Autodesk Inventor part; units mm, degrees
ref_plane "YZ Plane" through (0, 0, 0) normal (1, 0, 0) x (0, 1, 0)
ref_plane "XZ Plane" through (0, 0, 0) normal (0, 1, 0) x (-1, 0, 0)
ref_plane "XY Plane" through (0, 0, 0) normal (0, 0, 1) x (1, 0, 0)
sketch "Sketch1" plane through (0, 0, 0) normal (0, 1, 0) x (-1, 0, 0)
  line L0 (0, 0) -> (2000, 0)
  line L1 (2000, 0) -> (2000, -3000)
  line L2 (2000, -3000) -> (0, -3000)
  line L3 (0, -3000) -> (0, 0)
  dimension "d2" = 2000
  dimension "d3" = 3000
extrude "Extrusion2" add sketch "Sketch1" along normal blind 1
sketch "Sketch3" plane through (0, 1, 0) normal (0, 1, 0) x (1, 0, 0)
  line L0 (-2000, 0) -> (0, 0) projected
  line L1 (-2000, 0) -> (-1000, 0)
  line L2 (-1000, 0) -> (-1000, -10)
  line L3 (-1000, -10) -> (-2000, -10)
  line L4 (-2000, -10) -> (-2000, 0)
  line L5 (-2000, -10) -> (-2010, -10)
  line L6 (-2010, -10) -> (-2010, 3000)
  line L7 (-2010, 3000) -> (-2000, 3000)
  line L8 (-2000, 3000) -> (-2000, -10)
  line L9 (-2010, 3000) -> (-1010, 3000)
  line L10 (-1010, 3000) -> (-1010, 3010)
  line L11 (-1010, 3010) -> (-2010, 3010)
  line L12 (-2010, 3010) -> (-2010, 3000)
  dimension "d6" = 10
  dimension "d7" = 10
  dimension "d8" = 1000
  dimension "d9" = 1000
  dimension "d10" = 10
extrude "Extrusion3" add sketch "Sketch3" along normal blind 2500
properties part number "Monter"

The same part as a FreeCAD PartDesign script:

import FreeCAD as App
import Part
import Sketcher
from FreeCAD import Vector

doc = App.newDocument("Part")
params = doc.addObject("Spreadsheet::Sheet", "Params")
for row, (alias, value) in enumerate([
    ("sketch1_width", "2000 mm"),
    ("sketch1_height", "3000 mm"),
    ("pad1_length", "1 mm"),
    ("sketch2_width", "1000 mm"),
    ("sketch2_height", "10 mm"),
    ("sketch2_height2", "3000 mm"),
    ("pad2_length", "2500 mm"),
], start=1):
    params.set(f"A{row}", alias)
    params.set(f"B{row}", "=" + value)
    params.setAlias(f"B{row}", alias)

body = doc.addObject("PartDesign::Body", "Body")
body.AllowCompound = True

# Sketch on XZ plane
sketch1 = body.newObject("Sketcher::SketchObject", "Sketch")
sketch1.AttachmentSupport = (doc.getObject("XZ_Plane"), [""])
sketch1.MapMode = "FlatFace"
sketch1.addGeometry([
    Part.LineSegment(Vector(-2000, 0, 0), Vector(0, 0, 0)),
    Part.LineSegment(Vector(0, 0, 0), Vector(0, -3000, 0)),
    Part.LineSegment(Vector(0, -3000, 0), Vector(-2000, -3000, 0)),
    Part.LineSegment(Vector(-2000, -3000, 0), Vector(-2000, 0, 0)),
], False)
sketch1.addConstraint([
    Sketcher.Constraint("Coincident", 0, 2, 1, 1),
    Sketcher.Constraint("Coincident", 1, 2, 2, 1),
    Sketcher.Constraint("Coincident", 2, 2, 3, 1),
    Sketcher.Constraint("Coincident", 3, 2, 0, 1),
    Sketcher.Constraint("Horizontal", 0),
    Sketcher.Constraint("Vertical", 1),
    Sketcher.Constraint("Horizontal", 2),
    Sketcher.Constraint("Vertical", 3),
    Sketcher.Constraint("Coincident", 0, 2, -1, 1),
    Sketcher.Constraint("DistanceX", 0, 1, 0, 2, 2000.0),
    Sketcher.Constraint("DistanceY", 1, 2, 1, 1, 3000.0),
])
sketch1.setExpression("Constraints[9]", "Params.sketch1_width")
sketch1.setExpression("Constraints[10]", "Params.sketch1_height")
pad1 = body.newObject("PartDesign::Pad", "Pad")
pad1.Profile = sketch1
pad1.setExpression("Length", "Params.pad1_length")
pad1.Reversed = True

# Sketch on XZ plane
sketch2 = body.newObject("Sketcher::SketchObject", "Sketch001")
sketch2.AttachmentSupport = (doc.getObject("XZ_Plane"), [""])
sketch2.MapMode = "FlatFace"
sketch2.AttachmentOffset = App.Placement(Vector(0, 0, -1), App.Rotation())
sketch2.addGeometry([
    Part.LineSegment(Vector(-1000, 0, 0), Vector(-2000, 0, 0)),  # 0
    Part.LineSegment(Vector(-2000, 0, 0), Vector(-2000, -3000, 0)),  # 1
    Part.LineSegment(Vector(-2000, -3000, 0), Vector(-1010, -3000, 0)),  # 2
    Part.LineSegment(Vector(-1010, -3000, 0), Vector(-1010, -3010, 0)),  # 3
    Part.LineSegment(Vector(-1010, -3010, 0), Vector(-2010, -3010, 0)),  # 4
    Part.LineSegment(Vector(-2010, -3010, 0), Vector(-2010, 10, 0)),  # 5
    Part.LineSegment(Vector(-2010, 10, 0), Vector(-1000, 10, 0)),  # 6
    Part.LineSegment(Vector(-1000, 10, 0), Vector(-1000, 0, 0)),  # 7
], False)
sketch2.addConstraint([
    Sketcher.Constraint("Coincident", 0, 2, 1, 1),
    Sketcher.Constraint("Coincident", 1, 2, 2, 1),
    Sketcher.Constraint("Coincident", 2, 2, 3, 1),
    Sketcher.Constraint("Coincident", 3, 2, 4, 1),
    Sketcher.Constraint("Coincident", 4, 2, 5, 1),
    Sketcher.Constraint("Coincident", 5, 2, 6, 1),
    Sketcher.Constraint("Coincident", 6, 2, 7, 1),
    Sketcher.Constraint("Coincident", 7, 2, 0, 1),
    Sketcher.Constraint("Horizontal", 0),
    Sketcher.Constraint("Vertical", 1),
    Sketcher.Constraint("Horizontal", 2),
    Sketcher.Constraint("Vertical", 3),
    Sketcher.Constraint("Horizontal", 4),
    Sketcher.Constraint("Vertical", 5),
    Sketcher.Constraint("Horizontal", 6),
    Sketcher.Constraint("Vertical", 7),
    Sketcher.Constraint("PointOnObject", 0, 2, -1),
    Sketcher.Constraint("Equal", 0, 4),
    Sketcher.Constraint("Equal", 3, 7),
    Sketcher.Constraint("DistanceX", 0, 2, 0, 1, 1000.0),
    Sketcher.Constraint("DistanceY", 3, 2, 3, 1, 10.0),
    Sketcher.Constraint("DistanceX", 6, 2, -1, 1, 1000.0),
    Sketcher.Constraint("DistanceX", 4, 2, 1, 2, 10.0),
    Sketcher.Constraint("DistanceY", 1, 2, 1, 1, 3000.0),
])
sketch2.setExpression("Constraints[19]", "Params.sketch2_width")
sketch2.setExpression("Constraints[20]", "Params.sketch2_height")
sketch2.setExpression("Constraints[23]", "Params.sketch2_height2")
pad2 = body.newObject("PartDesign::Pad", "Pad001")
pad2.Profile = sketch2
pad2.setExpression("Length", "Params.pad2_length")
pad2.Reversed = True

doc.recompute()
